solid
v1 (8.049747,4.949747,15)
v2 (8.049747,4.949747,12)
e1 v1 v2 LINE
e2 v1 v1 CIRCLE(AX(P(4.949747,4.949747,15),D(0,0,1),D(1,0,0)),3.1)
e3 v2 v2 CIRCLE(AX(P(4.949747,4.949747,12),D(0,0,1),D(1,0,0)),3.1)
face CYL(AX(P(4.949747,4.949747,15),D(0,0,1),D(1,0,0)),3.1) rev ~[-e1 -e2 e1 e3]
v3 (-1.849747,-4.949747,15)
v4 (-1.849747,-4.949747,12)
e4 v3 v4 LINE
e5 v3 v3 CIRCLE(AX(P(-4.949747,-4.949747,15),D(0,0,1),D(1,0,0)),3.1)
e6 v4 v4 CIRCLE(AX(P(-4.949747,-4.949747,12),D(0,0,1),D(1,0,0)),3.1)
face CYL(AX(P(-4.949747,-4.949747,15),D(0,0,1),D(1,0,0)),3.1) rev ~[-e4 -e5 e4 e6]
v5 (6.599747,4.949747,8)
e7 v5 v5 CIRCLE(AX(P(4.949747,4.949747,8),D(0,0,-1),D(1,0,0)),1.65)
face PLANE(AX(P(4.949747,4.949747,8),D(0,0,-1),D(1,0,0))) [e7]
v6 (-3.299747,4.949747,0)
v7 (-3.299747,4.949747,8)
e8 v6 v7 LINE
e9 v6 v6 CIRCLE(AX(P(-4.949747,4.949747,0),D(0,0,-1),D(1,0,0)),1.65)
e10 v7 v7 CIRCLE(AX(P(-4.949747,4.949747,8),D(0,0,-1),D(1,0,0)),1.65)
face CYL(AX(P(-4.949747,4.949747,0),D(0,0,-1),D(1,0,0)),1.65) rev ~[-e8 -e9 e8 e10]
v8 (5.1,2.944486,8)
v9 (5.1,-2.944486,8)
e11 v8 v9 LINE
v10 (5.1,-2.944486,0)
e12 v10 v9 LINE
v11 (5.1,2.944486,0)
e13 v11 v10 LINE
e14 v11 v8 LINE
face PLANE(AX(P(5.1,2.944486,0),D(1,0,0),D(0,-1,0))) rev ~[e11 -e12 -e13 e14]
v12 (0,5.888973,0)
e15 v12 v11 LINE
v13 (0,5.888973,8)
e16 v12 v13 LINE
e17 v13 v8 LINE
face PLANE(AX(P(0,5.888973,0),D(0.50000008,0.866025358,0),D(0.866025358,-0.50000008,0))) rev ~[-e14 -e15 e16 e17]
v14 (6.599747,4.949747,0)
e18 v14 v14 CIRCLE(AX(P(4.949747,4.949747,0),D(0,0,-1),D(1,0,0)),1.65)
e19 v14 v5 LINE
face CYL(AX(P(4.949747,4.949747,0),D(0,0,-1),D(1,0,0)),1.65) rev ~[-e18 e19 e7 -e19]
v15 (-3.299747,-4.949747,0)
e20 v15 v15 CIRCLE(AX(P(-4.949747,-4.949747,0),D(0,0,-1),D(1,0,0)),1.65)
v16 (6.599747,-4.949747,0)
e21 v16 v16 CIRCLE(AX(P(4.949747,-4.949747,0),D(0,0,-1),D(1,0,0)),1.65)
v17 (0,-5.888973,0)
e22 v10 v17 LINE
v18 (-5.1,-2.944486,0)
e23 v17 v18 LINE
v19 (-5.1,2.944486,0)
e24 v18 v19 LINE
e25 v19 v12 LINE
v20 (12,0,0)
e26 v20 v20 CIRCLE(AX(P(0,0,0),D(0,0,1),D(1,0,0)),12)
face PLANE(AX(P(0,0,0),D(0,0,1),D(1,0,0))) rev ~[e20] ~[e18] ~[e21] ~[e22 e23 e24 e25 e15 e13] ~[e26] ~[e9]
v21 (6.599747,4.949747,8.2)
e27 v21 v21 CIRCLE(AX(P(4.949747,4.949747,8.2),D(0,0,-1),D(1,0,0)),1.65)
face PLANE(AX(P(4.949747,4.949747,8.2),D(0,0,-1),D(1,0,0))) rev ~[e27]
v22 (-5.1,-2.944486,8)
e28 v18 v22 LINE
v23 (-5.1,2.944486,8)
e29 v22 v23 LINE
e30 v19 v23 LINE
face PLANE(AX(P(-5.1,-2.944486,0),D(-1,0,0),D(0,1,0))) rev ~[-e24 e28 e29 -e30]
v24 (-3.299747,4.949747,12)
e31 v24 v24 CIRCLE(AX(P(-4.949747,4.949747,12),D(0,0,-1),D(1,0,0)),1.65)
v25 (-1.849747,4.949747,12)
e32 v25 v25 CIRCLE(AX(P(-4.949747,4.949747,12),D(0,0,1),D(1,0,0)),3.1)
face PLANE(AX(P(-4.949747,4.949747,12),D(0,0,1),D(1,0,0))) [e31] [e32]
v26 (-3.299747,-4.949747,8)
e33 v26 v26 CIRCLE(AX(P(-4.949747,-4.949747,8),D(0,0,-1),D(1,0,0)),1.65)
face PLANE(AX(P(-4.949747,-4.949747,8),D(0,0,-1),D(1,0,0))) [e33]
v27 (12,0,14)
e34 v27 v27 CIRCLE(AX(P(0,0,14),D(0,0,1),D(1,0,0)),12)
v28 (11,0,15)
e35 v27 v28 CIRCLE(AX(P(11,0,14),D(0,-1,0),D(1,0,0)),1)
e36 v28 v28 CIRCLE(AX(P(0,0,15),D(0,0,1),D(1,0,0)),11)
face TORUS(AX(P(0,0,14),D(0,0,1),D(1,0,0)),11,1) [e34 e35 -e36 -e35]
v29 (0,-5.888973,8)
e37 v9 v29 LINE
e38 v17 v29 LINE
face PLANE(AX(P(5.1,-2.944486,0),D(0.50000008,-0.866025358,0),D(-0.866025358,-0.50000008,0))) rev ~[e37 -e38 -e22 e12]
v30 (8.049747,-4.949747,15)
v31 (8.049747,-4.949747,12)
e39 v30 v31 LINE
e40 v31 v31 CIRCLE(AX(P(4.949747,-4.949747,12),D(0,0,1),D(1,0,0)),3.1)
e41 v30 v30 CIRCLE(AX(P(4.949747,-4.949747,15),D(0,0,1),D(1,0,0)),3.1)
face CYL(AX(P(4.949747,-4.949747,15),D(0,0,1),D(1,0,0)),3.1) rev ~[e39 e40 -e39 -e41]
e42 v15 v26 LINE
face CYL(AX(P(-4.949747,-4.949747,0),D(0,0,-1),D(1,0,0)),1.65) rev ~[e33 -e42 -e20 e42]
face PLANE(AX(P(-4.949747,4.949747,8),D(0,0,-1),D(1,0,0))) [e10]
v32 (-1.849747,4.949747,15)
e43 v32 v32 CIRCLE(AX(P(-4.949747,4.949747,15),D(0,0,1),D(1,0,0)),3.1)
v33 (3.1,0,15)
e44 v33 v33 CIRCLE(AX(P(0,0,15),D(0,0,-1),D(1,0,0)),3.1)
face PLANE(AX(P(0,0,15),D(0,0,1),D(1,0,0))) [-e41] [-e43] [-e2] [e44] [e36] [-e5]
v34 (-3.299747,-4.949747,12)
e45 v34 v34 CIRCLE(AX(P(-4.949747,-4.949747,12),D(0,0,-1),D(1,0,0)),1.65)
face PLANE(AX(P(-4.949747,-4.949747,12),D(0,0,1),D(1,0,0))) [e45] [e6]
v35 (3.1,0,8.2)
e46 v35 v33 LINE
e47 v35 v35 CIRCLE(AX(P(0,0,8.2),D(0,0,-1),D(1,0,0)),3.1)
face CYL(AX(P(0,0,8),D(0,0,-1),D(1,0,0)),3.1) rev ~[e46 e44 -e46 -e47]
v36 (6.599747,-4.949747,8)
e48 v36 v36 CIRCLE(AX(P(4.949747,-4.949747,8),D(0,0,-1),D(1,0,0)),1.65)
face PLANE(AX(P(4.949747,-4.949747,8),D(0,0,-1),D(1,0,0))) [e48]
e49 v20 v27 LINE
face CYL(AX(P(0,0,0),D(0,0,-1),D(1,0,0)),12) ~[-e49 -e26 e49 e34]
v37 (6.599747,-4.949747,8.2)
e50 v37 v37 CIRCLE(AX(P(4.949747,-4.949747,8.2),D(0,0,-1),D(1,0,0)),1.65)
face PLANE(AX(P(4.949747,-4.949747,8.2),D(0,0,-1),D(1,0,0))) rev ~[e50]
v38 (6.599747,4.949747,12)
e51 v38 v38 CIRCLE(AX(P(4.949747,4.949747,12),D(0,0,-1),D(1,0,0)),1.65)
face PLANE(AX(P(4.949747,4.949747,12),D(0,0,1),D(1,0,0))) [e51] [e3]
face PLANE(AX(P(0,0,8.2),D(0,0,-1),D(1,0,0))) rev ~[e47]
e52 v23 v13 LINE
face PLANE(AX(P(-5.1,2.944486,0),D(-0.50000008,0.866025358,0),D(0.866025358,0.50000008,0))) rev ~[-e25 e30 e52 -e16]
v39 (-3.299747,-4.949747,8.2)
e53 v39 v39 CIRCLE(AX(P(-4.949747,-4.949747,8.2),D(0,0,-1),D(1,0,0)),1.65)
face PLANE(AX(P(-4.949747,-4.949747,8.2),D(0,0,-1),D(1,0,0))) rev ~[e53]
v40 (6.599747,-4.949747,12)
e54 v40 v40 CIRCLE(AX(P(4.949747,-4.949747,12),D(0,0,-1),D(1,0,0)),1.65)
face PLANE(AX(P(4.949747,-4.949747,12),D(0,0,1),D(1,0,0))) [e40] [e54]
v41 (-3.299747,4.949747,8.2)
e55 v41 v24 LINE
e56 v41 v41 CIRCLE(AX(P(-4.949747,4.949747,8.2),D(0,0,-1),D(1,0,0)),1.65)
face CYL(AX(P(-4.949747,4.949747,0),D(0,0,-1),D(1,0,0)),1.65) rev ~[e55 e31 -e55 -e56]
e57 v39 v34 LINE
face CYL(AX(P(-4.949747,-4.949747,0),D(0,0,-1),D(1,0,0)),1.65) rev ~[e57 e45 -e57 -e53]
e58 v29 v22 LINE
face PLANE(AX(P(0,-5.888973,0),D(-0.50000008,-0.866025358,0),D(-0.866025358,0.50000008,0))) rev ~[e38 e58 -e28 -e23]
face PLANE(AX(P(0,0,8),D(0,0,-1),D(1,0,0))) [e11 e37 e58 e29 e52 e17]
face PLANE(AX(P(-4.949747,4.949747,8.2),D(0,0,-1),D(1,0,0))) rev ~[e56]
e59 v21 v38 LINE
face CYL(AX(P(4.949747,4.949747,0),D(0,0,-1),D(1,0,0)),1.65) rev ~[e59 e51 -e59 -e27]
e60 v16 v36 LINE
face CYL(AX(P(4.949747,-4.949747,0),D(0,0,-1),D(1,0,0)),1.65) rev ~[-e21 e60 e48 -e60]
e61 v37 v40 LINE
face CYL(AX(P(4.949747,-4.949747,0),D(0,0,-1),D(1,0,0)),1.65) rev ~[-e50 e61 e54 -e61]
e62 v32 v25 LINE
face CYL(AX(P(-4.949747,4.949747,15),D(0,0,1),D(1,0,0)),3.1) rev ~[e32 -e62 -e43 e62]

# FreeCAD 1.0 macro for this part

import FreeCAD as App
import Part
import Sketcher
from FreeCAD import Vector
Q = App.Units.Quantity


def edges_at(feature, points):
    """Names of the edges that pass closest to the given points."""
    edges = feature.Shape.Edges
    near = lambda p: min(range(len(edges)), key=lambda i: edges[i].distToShape(Part.Vertex(*p))[0])
    return sorted({f"Edge{near(p) + 1}" for p in points})

doc = App.newDocument("Part")
body = doc.addObject("PartDesign::Body", "Body")

# Sketch on XY plane
sketch1 = body.newObject("Sketcher::SketchObject", "Sketch")
sketch1.AttachmentSupport = (doc.getObject("XY_Plane"), [""])
sketch1.MapMode = "FlatFace"
sketch1.addGeometry(Part.Circle(Vector(0, 0, 0), Vector(0, 0, 1), 12), False)
sketch1.addConstraint([
    Sketcher.Constraint("Coincident", 0, 3, -1, 1),
    Sketcher.Constraint("Diameter", 0, 24.0),
])
pad1 = body.newObject("PartDesign::Pad", "Pad")
pad1.Profile = sketch1
pad1.Length = 15

# Sketch on XY plane
sketch2 = body.newObject("Sketcher::SketchObject", "Sketch001")
sketch2.AttachmentSupport = (doc.getObject("XY_Plane"), [""])
sketch2.MapMode = "FlatFace"
sketch2.addGeometry([
    Part.Circle(Vector(-4.949747, -4.949747, 0), Vector(0, 0, 1), 1.65),
    Part.Circle(Vector(4.949747, -4.949747, 0), Vector(0, 0, 1), 1.65),
    Part.Circle(Vector(4.949747, 4.949747, 0), Vector(0, 0, 1), 1.65),
    Part.Circle(Vector(-4.949747, 4.949747, 0), Vector(0, 0, 1), 1.65),
], False)
sketch2.addConstraint([
    Sketcher.Constraint("Equal", 0, 1),
    Sketcher.Constraint("Equal", 1, 2),
    Sketcher.Constraint("Equal", 2, 3),
    Sketcher.Constraint("Symmetric", 0, 3, 2, 3, -1, 1),
    Sketcher.Constraint("Symmetric", 1, 3, 3, 3, -1, 1),
    Sketcher.Constraint("Symmetric", 0, 3, 1, 3, -2),
    Sketcher.Constraint("Diameter", 0, 3.3),
    Sketcher.Constraint("DistanceX", 0, 3, -1, 1, 4.949747),
    Sketcher.Constraint("DistanceY", 0, 3, -1, 1, 4.949747),
])
pocket1 = body.newObject("PartDesign::Pocket", "Pocket")
pocket1.Profile = sketch2
pocket1.Type = "ThroughAll"
pocket1.Reversed = True

# Sketch on XY plane
sketch3 = body.newObject("Sketcher::SketchObject", "Sketch002")
sketch3.AttachmentSupport = (doc.getObject("XY_Plane"), [""])
sketch3.MapMode = "FlatFace"
sketch3.addGeometry([
    Part.LineSegment(Vector(5.1, -2.944486, 0), Vector(0, -5.888973, 0)),  # 0
    Part.LineSegment(Vector(0, -5.888973, 0), Vector(-5.1, -2.944486, 0)),  # 1
    Part.LineSegment(Vector(-5.1, -2.944486, 0), Vector(-5.1, 2.944486, 0)),  # 2
    Part.LineSegment(Vector(-5.1, 2.944486, 0), Vector(0, 5.888973, 0)),  # 3
    Part.LineSegment(Vector(0, 5.888973, 0), Vector(5.1, 2.944486, 0)),  # 4
    Part.LineSegment(Vector(5.1, 2.944486, 0), Vector(5.1, -2.944486, 0)),  # 5
], False)
sketch3.addConstraint([
    Sketcher.Constraint("Coincident", 0, 2, 1, 1),
    Sketcher.Constraint("Coincident", 1, 2, 2, 1),
    Sketcher.Constraint("Coincident", 2, 2, 3, 1),
    Sketcher.Constraint("Coincident", 3, 2, 4, 1),
    Sketcher.Constraint("Coincident", 4, 2, 5, 1),
    Sketcher.Constraint("Coincident", 5, 2, 0, 1),
    Sketcher.Constraint("Vertical", 2),
    Sketcher.Constraint("Vertical", 5),
    Sketcher.Constraint("Symmetric", 0, 2, 3, 2, -1, 1),
    Sketcher.Constraint("Symmetric", 1, 2, 4, 2, -1, 1),
    Sketcher.Constraint("PointOnObject", 0, 2, -2),
    Sketcher.Constraint("Parallel", 0, 3),
    Sketcher.Constraint("Horizontal", 2, 2, 4, 2),
    Sketcher.Constraint("Angle", 0, Q("-149.999995 deg")),
    Sketcher.Constraint("DistanceX", 1, 2, -1, 1, 5.1),
    Sketcher.Constraint("DistanceY", 2, 1, 2, 2, 5.888972),
])
pocket2 = body.newObject("PartDesign::Pocket", "Pocket001")
pocket2.Profile = sketch3
pocket2.Length = 8
pocket2.Reversed = True

# Sketch on XY plane
sketch4 = body.newObject("Sketcher::SketchObject", "Sketch003")
sketch4.AttachmentSupport = (doc.getObject("XY_Plane"), [""])
sketch4.MapMode = "FlatFace"
sketch4.AttachmentOffset = App.Placement(Vector(0, 0, 8), App.Rotation())
sketch4.addGeometry(Part.Circle(Vector(0, 0, 0), Vector(0, 0, 1), 3.1), False)
sketch4.addConstraint([
    Sketcher.Constraint("Coincident", 0, 3, -1, 1),
    Sketcher.Constraint("Diameter", 0, 6.2),
])
pocket3 = body.newObject("PartDesign::Pocket", "Pocket002")
pocket3.Profile = sketch4
pocket3.Type = "ThroughAll"
pocket3.Reversed = True

# Sketch on XY plane
sketch5 = body.newObject("Sketcher::SketchObject", "Sketch004")
sketch5.AttachmentSupport = (doc.getObject("XY_Plane"), [""])
sketch5.MapMode = "FlatFace"
sketch5.AttachmentOffset = App.Placement(Vector(0, 0, 8), App.Rotation())
sketch5.addGeometry(Part.Circle(Vector(0, 0, 0), Vector(0, 0, 1), 3.1), False)
sketch5.addConstraint([
    Sketcher.Constraint("Coincident", 0, 3, -1, 1),
    Sketcher.Constraint("Diameter", 0, 6.2),
])
pad2 = body.newObject("PartDesign::Pad", "Pad001")
pad2.Profile = sketch5
pad2.Length = 0.2

# Sketch on XY plane
sketch6 = body.newObject("Sketcher::SketchObject", "Sketch005")
sketch6.AttachmentSupport = (doc.getObject("XY_Plane"), [""])
sketch6.MapMode = "FlatFace"
sketch6.AttachmentOffset = App.Placement(Vector(0, 0, 15), App.Rotation())
sketch6.addGeometry([
    Part.Circle(Vector(4.949747, 4.949747, 0), Vector(0, 0, 1), 3.1),
    Part.Circle(Vector(4.949747, -4.949747, 0), Vector(0, 0, 1), 3.1),
    Part.Circle(Vector(-4.949747, -4.949747, 0), Vector(0, 0, 1), 3.1),
    Part.Circle(Vector(-4.949747, 4.949747, 0), Vector(0, 0, 1), 3.1),
], False)
sketch6.addConstraint([
    Sketcher.Constraint("Equal", 0, 1),
    Sketcher.Constraint("Equal", 1, 2),
    Sketcher.Constraint("Equal", 2, 3),
    Sketcher.Constraint("Symmetric", 0, 3, 2, 3, -1, 1),
    Sketcher.Constraint("Symmetric", 1, 3, 3, 3, -1, 1),
    Sketcher.Constraint("Symmetric", 1, 3, 2, 3, -2),
    Sketcher.Constraint("Diameter", 0, 6.2),
    Sketcher.Constraint("DistanceX", -1, 1, 0, 3, 4.949747),
    Sketcher.Constraint("DistanceY", -1, 1, 0, 3, 4.949747),
])
pocket4 = body.newObject("PartDesign::Pocket", "Pocket003")
pocket4.Profile = sketch6
pocket4.Length = 3
doc.recompute()

fillet = body.newObject("PartDesign::Fillet", "Fillet")
fillet.Base = (pocket4, edges_at(pocket4, [(-12, 0, 15)]))
fillet.Radius = 1

# Sketch on XY plane
sketch7 = body.newObject("Sketcher::SketchObject", "Sketch006")
sketch7.AttachmentSupport = (doc.getObject("XY_Plane"), [""])
sketch7.MapMode = "FlatFace"
sketch7.AttachmentOffset = App.Placement(Vector(0, 0, 8), App.Rotation())
sketch7.addGeometry([
    Part.Circle(Vector(-4.949747, -4.949747, 0), Vector(0, 0, 1), 1.65),
    Part.Circle(Vector(4.949747, -4.949747, 0), Vector(0, 0, 1), 1.65),
    Part.Circle(Vector(4.949747, 4.949747, 0), Vector(0, 0, 1), 1.65),
    Part.Circle(Vector(-4.949747, 4.949747, 0), Vector(0, 0, 1), 1.65),
], False)
sketch7.addConstraint([
    Sketcher.Constraint("Equal", 0, 1),
    Sketcher.Constraint("Equal", 1, 2),
    Sketcher.Constraint("Equal", 2, 3),
    Sketcher.Constraint("Symmetric", 0, 3, 2, 3, -1, 1),
    Sketcher.Constraint("Symmetric", 1, 3, 3, 3, -1, 1),
    Sketcher.Constraint("Symmetric", 0, 3, 1, 3, -2),
    Sketcher.Constraint("Diameter", 0, 3.3),
    Sketcher.Constraint("DistanceX", 0, 3, -1, 1, 4.949747),
    Sketcher.Constraint("DistanceY", 0, 3, -1, 1, 4.949747),
])
pad3 = body.newObject("PartDesign::Pad", "Pad002")
pad3.Profile = sketch7
pad3.Length = 0.2

doc.recompute()
